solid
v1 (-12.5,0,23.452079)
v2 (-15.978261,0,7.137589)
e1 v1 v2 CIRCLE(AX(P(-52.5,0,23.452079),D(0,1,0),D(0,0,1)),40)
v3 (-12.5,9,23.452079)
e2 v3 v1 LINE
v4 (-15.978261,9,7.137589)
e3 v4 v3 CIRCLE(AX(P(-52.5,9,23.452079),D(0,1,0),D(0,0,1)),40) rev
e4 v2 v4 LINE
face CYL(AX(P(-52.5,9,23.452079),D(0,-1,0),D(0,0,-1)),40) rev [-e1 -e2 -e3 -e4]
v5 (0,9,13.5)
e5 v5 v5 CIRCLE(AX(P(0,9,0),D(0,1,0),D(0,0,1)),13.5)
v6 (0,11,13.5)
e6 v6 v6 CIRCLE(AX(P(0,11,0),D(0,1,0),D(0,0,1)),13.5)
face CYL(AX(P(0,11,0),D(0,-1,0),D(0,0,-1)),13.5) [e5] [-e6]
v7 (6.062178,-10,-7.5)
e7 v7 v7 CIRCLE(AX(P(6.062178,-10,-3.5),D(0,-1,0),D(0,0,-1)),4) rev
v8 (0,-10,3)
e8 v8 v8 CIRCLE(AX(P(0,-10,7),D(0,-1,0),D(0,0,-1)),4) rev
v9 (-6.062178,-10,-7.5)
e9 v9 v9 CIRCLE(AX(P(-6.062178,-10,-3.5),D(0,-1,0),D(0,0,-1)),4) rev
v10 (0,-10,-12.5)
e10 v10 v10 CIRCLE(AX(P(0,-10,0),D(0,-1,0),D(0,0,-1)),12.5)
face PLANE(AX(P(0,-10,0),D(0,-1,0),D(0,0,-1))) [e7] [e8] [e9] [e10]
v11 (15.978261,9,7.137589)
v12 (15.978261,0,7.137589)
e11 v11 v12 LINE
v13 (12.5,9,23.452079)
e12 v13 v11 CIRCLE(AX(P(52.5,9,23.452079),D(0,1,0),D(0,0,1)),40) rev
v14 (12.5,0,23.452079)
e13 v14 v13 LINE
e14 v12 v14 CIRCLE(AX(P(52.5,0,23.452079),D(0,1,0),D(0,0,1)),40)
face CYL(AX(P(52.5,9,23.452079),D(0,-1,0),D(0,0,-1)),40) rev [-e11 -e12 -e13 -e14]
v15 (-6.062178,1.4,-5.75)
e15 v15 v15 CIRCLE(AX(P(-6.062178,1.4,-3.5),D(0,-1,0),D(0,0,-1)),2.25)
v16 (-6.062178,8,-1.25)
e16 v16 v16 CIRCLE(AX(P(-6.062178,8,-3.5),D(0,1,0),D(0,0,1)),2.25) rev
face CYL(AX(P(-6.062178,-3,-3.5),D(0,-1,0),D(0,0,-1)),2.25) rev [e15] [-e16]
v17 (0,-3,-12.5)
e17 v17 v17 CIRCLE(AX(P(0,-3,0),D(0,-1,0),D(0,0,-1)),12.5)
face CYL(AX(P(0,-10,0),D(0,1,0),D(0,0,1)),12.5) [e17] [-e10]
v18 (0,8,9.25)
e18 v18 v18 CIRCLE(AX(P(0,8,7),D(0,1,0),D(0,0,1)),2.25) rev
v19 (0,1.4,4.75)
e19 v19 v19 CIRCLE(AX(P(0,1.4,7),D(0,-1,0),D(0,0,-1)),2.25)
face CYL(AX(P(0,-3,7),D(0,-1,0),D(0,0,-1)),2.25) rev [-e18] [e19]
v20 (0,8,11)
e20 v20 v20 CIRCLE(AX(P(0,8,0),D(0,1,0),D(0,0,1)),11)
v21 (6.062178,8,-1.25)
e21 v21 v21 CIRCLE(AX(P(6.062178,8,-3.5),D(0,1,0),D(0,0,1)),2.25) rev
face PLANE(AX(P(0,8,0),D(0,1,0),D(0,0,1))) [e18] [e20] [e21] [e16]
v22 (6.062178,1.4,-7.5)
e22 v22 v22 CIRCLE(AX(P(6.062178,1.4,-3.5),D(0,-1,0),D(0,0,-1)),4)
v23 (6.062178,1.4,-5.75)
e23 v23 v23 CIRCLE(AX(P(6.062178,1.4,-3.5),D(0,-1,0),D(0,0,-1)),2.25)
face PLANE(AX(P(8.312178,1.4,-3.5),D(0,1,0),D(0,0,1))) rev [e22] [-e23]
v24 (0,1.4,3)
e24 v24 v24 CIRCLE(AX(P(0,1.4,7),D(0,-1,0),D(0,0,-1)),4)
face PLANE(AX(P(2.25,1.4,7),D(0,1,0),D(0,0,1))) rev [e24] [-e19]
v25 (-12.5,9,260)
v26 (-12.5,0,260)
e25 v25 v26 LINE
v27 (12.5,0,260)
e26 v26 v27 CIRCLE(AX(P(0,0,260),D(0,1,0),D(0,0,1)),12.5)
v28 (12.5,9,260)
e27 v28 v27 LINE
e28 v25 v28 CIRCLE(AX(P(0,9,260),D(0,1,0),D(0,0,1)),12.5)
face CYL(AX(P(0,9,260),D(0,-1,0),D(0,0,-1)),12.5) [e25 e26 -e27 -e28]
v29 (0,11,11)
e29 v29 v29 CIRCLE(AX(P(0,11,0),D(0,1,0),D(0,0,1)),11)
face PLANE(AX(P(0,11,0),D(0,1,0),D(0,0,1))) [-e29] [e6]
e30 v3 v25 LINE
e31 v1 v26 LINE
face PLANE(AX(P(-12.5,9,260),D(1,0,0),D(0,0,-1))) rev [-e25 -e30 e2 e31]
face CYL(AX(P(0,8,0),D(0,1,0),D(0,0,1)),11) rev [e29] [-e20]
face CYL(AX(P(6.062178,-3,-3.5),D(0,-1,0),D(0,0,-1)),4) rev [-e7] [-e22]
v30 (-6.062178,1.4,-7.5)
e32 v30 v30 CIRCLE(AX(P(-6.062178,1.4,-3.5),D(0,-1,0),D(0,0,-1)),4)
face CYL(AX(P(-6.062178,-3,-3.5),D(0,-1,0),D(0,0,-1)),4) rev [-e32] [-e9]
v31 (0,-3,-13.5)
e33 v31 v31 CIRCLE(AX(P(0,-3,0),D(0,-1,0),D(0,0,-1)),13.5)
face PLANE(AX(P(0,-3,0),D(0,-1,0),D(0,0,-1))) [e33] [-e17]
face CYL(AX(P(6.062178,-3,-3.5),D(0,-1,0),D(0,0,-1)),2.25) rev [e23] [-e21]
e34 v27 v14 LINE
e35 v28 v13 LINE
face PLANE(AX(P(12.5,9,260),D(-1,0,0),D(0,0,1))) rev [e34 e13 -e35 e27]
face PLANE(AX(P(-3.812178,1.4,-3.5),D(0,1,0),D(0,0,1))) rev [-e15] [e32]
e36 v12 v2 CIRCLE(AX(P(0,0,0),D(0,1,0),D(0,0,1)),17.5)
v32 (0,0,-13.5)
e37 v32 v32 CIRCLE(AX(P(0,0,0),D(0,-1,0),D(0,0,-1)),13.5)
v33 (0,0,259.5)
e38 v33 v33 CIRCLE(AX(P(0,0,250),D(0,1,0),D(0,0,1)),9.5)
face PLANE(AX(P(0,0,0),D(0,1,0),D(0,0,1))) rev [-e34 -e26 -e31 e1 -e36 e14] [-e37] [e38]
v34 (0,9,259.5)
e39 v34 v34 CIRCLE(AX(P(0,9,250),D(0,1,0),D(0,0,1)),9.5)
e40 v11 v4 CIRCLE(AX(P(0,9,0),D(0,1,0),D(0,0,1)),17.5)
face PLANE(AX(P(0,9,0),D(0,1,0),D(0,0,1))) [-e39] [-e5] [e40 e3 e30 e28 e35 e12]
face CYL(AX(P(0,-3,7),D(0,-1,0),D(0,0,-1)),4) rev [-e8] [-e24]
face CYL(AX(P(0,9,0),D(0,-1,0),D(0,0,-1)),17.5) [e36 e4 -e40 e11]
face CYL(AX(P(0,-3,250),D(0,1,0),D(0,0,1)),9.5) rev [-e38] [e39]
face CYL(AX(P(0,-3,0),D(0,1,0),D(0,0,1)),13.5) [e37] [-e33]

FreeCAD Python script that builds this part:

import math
import FreeCAD as App
import Part
import Sketcher
Q = App.Units.Quantity


def edges_at(feature, points):
    """Names of the edges that pass closest to the given points."""
    edges = feature.Shape.Edges
    near = lambda p: min(range(len(edges)), key=lambda i: edges[i].distToShape(Part.Vertex(*p))[0])
    return sorted({f"Edge{near(p) + 1}" for p in points})

doc = App.newDocument("Part")
body = doc.addObject("PartDesign::Body", "Body")

# Sketch on XZ plane
sketch1 = doc.addObject("Sketcher::SketchObject", "Sketch")
body.addObject(sketch1)
sketch1.AttachmentSupport = (doc.XZ_Plane, [""])
sketch1.MapMode = "FlatFace"
sketch1.addGeometry(Part.LineSegment(App.Vector(-12, 12, 0), App.Vector(-12, 260, 0)), False)
sketch1.addGeometry(Part.ArcOfCircle(Part.Circle(App.Vector(0, 260, 0), App.Vector(0, 0, 1), 12), math.radians(0), math.radians(180)), False)
sketch1.addGeometry(Part.LineSegment(App.Vector(12, 260, 0), App.Vector(12, 12, 0)), False)
sketch1.addGeometry(Part.ArcOfCircle(Part.Circle(App.Vector(0, 0, 0), App.Vector(0, 0, 1), 18), math.radians(136), math.radians(404)), False)
sketch1.addConstraint(Sketcher.Constraint("Tangent", 0, 2, 1, 2))
sketch1.addConstraint(Sketcher.Constraint("Tangent", 1, 1, 2, 1))
sketch1.addConstraint(Sketcher.Constraint("Coincident", 2, 2, 3, 2))
sketch1.addConstraint(Sketcher.Constraint("Coincident", 3, 1, 0, 1))
sketch1.addConstraint(Sketcher.Constraint("Vertical", 0))
sketch1.addConstraint(Sketcher.Constraint("Vertical", 2))
sketch1.addConstraint(Sketcher.Constraint("Coincident", 3, 3, -1, 1))
sketch1.addConstraint(Sketcher.Constraint("PointOnObject", 1, 3, -2))
sketch1.addConstraint(Sketcher.Constraint("Radius", 1, Q("12.5 mm")))
sketch1.addConstraint(Sketcher.Constraint("Radius", 3, Q("17.5 mm")))
sketch1.addConstraint(Sketcher.Constraint("DistanceY", -1, 1, 1, 3, Q("260 mm")))
pad1 = doc.addObject("PartDesign::Pad", "Pad")
body.addObject(pad1)
pad1.Profile = sketch1
pad1.Length = 9
pad1.Reversed = True

# Sketch on XZ plane
sketch2 = doc.addObject("Sketcher::SketchObject", "Sketch001")
body.addObject(sketch2)
sketch2.AttachmentSupport = (doc.XZ_Plane, [""])
sketch2.MapMode = "FlatFace"
sketch2.AttachmentOffset = App.Placement(App.Vector(0, 0, -9), App.Rotation())
sketch2.addGeometry(Part.Circle(App.Vector(0, 0, 0), App.Vector(0, 0, 1), 14), False)
sketch2.addConstraint(Sketcher.Constraint("Coincident", 0, 3, -1, 1))
sketch2.addConstraint(Sketcher.Constraint("Diameter", 0, Q("27 mm")))
pad2 = doc.addObject("PartDesign::Pad", "Pad001")
body.addObject(pad2)
pad2.Profile = sketch2
pad2.Length = 2
pad2.Reversed = True

# Sketch on XZ plane
sketch3 = doc.addObject("Sketcher::SketchObject", "Sketch002")
body.addObject(sketch3)
sketch3.AttachmentSupport = (doc.XZ_Plane, [""])
sketch3.MapMode = "FlatFace"
sketch3.addGeometry(Part.Circle(App.Vector(0, 0, 0), App.Vector(0, 0, 1), 14), False)
sketch3.addConstraint(Sketcher.Constraint("Coincident", 0, 3, -1, 1))
sketch3.addConstraint(Sketcher.Constraint("Diameter", 0, Q("27 mm")))
pad3 = doc.addObject("PartDesign::Pad", "Pad002")
body.addObject(pad3)
pad3.Profile = sketch3
pad3.Length = 3

# Sketch on XZ plane
sketch4 = doc.addObject("Sketcher::SketchObject", "Sketch003")
body.addObject(sketch4)
sketch4.AttachmentSupport = (doc.XZ_Plane, [""])
sketch4.MapMode = "FlatFace"
sketch4.AttachmentOffset = App.Placement(App.Vector(0, 0, -9), App.Rotation())
sketch4.addGeometry(Part.Circle(App.Vector(0, 250, 0), App.Vector(0, 0, 1), 10), False)
sketch4.addConstraint(Sketcher.Constraint("PointOnObject", 0, 3, -2))
sketch4.addConstraint(Sketcher.Constraint("Diameter", 0, Q("19 mm")))
sketch4.addConstraint(Sketcher.Constraint("DistanceY", -1, 1, 0, 3, Q("250 mm")))
pocket1 = doc.addObject("PartDesign::Pocket", "Pocket")
body.addObject(pocket1)
pocket1.Profile = sketch4
pocket1.Type = "ThroughAll"
pocket1.Reversed = True

# Sketch on XZ plane
sketch5 = doc.addObject("Sketcher::SketchObject", "Sketch004")
body.addObject(sketch5)
sketch5.AttachmentSupport = (doc.XZ_Plane, [""])
sketch5.MapMode = "FlatFace"
sketch5.AttachmentOffset = App.Placement(App.Vector(0, 0, 3), App.Rotation())
sketch5.addGeometry(Part.Circle(App.Vector(0, 7, 0), App.Vector(0, 0, 1), 2.2), False)
sketch5.addConstraint(Sketcher.Constraint("PointOnObject", 0, 3, -2))
sketch5.addConstraint(Sketcher.Constraint("Diameter", 0, Q("4.5 mm")))
sketch5.addConstraint(Sketcher.Constraint("DistanceY", -1, 1, 0, 3, Q("7 mm")))
doc.recompute()
hole = doc.addObject("PartDesign::Hole", "Hole")
body.addObject(hole)
hole.Profile = sketch5
hole.ThreadType = "None"
hole.Diameter = 4.5
hole.DepthType = "ThroughAll"
hole.HoleCutType = "Counterbore"
hole.HoleCutDiameter = 8
hole.HoleCutDepth = 4.4
doc.recompute()

polarpattern = doc.addObject("PartDesign::PolarPattern", "PolarPattern")
body.addObject(polarpattern)
polarpattern.Originals = [hole]
polarpattern.Axis = (doc.Y_Axis, [""])
polarpattern.Angle = 360
polarpattern.Occurrences = 3
body.Tip = polarpattern

# Sketch on XZ plane
sketch6 = doc.addObject("Sketcher::SketchObject", "Sketch005")
body.addObject(sketch6)
sketch6.AttachmentSupport = (doc.XZ_Plane, [""])
sketch6.MapMode = "FlatFace"
sketch6.AttachmentOffset = App.Placement(App.Vector(0, 0, 3), App.Rotation())
sketch6.addGeometry(Part.Circle(App.Vector(0, 0, 0), App.Vector(0, 0, 1), 12.5), False)
sketch6.addGeometry(Part.Circle(App.Vector(0, 7, 0), App.Vector(0, 0, 1), 4), False)
sketch6.addGeometry(Part.Circle(App.Vector(-6.1, -3.5, 0), App.Vector(0, 0, 1), 4), False)
sketch6.addGeometry(Part.Circle(App.Vector(6.1, -3.5, 0), App.Vector(0, 0, 1), 4), False)
sketch6.addConstraint(Sketcher.Constraint("Coincident", 0, 3, -1, 1))
sketch6.addConstraint(Sketcher.Constraint("Equal", 1, 2))
sketch6.addConstraint(Sketcher.Constraint("Equal", 2, 3))
sketch6.addConstraint(Sketcher.Constraint("Symmetric", 2, 3, 3, 3, -2))
sketch6.addConstraint(Sketcher.Constraint("PointOnObject", 1, 3, -2))
sketch6.addConstraint(Sketcher.Constraint("Diameter", 0, Q("25 mm")))
sketch6.addConstraint(Sketcher.Constraint("Diameter", 1, Q("8 mm")))
sketch6.addConstraint(Sketcher.Constraint("DistanceY", -1, 1, 1, 3, Q("7 mm")))
sketch6.addConstraint(Sketcher.Constraint("DistanceY", 2, 3, -1, 1, Q("3.5 mm")))
sketch6.addConstraint(Sketcher.Constraint("DistanceX", 2, 3, -1, 1, Q("6.062178 mm")))
pad4 = doc.addObject("PartDesign::Pad", "Pad003")
body.addObject(pad4)
pad4.Profile = sketch6
pad4.Length = 7

# Sketch on XZ plane
sketch7 = doc.addObject("Sketcher::SketchObject", "Sketch006")
body.addObject(sketch7)
sketch7.AttachmentSupport = (doc.XZ_Plane, [""])
sketch7.MapMode = "FlatFace"
sketch7.AttachmentOffset = App.Placement(App.Vector(0, 0, -11), App.Rotation())
sketch7.addGeometry(Part.Circle(App.Vector(0, 0, 0), App.Vector(0, 0, 1), 11), False)
sketch7.addConstraint(Sketcher.Constraint("Coincident", 0, 3, -1, 1))
sketch7.addConstraint(Sketcher.Constraint("Diameter", 0, Q("22 mm")))
pocket2 = doc.addObject("PartDesign::Pocket", "Pocket001")
body.addObject(pocket2)
pocket2.Profile = sketch7
pocket2.Length = 3
pocket2.Reversed = True
doc.recompute()

fillet = doc.addObject("PartDesign::Fillet", "Fillet")
body.addObject(fillet)
fillet.Base = (pocket2, edges_at(pocket2, [(12.5, 4.5, 12.247), (-12.5, 4.5, 12.247)]))
fillet.Radius = 40

doc.recompute()
